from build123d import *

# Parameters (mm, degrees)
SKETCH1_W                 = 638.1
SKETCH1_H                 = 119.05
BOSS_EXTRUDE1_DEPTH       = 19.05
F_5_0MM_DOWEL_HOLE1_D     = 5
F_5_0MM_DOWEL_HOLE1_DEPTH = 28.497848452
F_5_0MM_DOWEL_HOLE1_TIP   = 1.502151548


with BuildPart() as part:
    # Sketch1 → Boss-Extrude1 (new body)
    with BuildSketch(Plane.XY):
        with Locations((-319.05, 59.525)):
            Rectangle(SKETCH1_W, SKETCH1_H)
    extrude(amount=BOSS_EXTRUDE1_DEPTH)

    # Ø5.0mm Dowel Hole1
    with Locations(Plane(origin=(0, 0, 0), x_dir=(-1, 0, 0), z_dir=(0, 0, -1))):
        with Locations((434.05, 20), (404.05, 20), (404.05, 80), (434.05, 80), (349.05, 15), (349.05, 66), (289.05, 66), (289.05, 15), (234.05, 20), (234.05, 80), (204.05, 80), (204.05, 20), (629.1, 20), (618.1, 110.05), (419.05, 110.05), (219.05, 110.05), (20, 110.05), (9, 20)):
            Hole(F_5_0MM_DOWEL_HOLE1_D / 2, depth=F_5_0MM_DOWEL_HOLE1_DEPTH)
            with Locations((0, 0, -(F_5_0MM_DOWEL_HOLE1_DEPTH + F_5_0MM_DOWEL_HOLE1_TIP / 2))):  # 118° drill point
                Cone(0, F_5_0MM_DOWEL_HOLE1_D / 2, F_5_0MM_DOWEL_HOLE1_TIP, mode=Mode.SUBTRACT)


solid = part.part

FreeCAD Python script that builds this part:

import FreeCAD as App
import Part
import Sketcher

doc = App.newDocument("Part")
params = doc.addObject("Spreadsheet::Sheet", "Params")
for row, (alias, value) in enumerate([
    ("sketch1_width", "638.1 mm"),
    ("sketch1_height", "119.05 mm"),
    ("pad1_length", "19.05 mm"),
    ("sketch2_diameter", "5 mm"),
    ("hole_diameter", "5 mm"),
    ("hole_depth", "28.497848 mm"),
], start=1):
    params.set(f"A{row}", alias)
    params.set(f"B{row}", "=" + value)
    params.setAlias(f"B{row}", alias)

body = doc.addObject("PartDesign::Body", "Body")

# Sketch on XY plane
sketch1 = body.newObject("Sketcher::SketchObject", "Sketch")
sketch1.AttachmentSupport = (doc.getObject("XY_Plane"), [""])
sketch1.MapMode = "FlatFace"
sketch1.addGeometry(Part.LineSegment(App.Vector(-638.1, 119.05, 0), App.Vector(-638.1, 0, 0)), False)
sketch1.addGeometry(Part.LineSegment(App.Vector(-638.1, 0, 0), App.Vector(0, 0, 0)), False)
sketch1.addGeometry(Part.LineSegment(App.Vector(0, 0, 0), App.Vector(0, 119.05, 0)), False)
sketch1.addGeometry(Part.LineSegment(App.Vector(0, 119.05, 0), App.Vector(-638.1, 119.05, 0)), False)
sketch1.addConstraint(Sketcher.Constraint("Coincident", 0, 2, 1, 1))
sketch1.addConstraint(Sketcher.Constraint("Coincident", 1, 2, 2, 1))
sketch1.addConstraint(Sketcher.Constraint("Coincident", 2, 2, 3, 1))
sketch1.addConstraint(Sketcher.Constraint("Coincident", 3, 2, 0, 1))
sketch1.addConstraint(Sketcher.Constraint("Vertical", 0))
sketch1.addConstraint(Sketcher.Constraint("Horizontal", 1))
sketch1.addConstraint(Sketcher.Constraint("Vertical", 2))
sketch1.addConstraint(Sketcher.Constraint("Horizontal", 3))
sketch1.addConstraint(Sketcher.Constraint("Coincident", 1, 2, -1, 1))
sketch1.addConstraint(Sketcher.Constraint("DistanceX", 1, 1, 1, 2, 638.1))
sketch1.addConstraint(Sketcher.Constraint("DistanceY", 0, 2, 0, 1, 119.05))
sketch1.setExpression("Constraints[9]", "Params.sketch1_width")
sketch1.setExpression("Constraints[10]", "Params.sketch1_height")
pad1 = body.newObject("PartDesign::Pad", "Pad")
pad1.Profile = sketch1
pad1.setExpression("Length", "Params.pad1_length")

# Sketch on XY plane
sketch2 = body.newObject("Sketcher::SketchObject", "Sketch001")
sketch2.AttachmentSupport = (doc.getObject("XY_Plane"), [""])
sketch2.MapMode = "FlatFace"
sketch2.addGeometry(Part.Circle(App.Vector(-434.05, 20, 0), App.Vector(0, 0, 1), 2.5), False)
sketch2.addGeometry(Part.Circle(App.Vector(-404.05, 20, 0), App.Vector(0, 0, 1), 2.5), False)
sketch2.addGeometry(Part.Circle(App.Vector(-404.05, 80, 0), App.Vector(0, 0, 1), 2.5), False)
sketch2.addGeometry(Part.Circle(App.Vector(-434.05, 80, 0), App.Vector(0, 0, 1), 2.5), False)
sketch2.addGeometry(Part.Circle(App.Vector(-349.05, 15, 0), App.Vector(0, 0, 1), 2.5), False)
sketch2.addGeometry(Part.Circle(App.Vector(-349.05, 66, 0), App.Vector(0, 0, 1), 2.5), False)
sketch2.addGeometry(Part.Circle(App.Vector(-289.05, 66, 0), App.Vector(0, 0, 1), 2.5), False)
sketch2.addGeometry(Part.Circle(App.Vector(-289.05, 15, 0), App.Vector(0, 0, 1), 2.5), False)
sketch2.addGeometry(Part.Circle(App.Vector(-234.05, 20, 0), App.Vector(0, 0, 1), 2.5), False)
sketch2.addGeometry(Part.Circle(App.Vector(-234.05, 80, 0), App.Vector(0, 0, 1), 2.5), False)
sketch2.addGeometry(Part.Circle(App.Vector(-204.05, 80, 0), App.Vector(0, 0, 1), 2.5), False)
sketch2.addGeometry(Part.Circle(App.Vector(-204.05, 20, 0), App.Vector(0, 0, 1), 2.5), False)
sketch2.addGeometry(Part.Circle(App.Vector(-629.1, 20, 0), App.Vector(0, 0, 1), 2.5), False)
sketch2.addGeometry(Part.Circle(App.Vector(-618.1, 110.05, 0), App.Vector(0, 0, 1), 2.5), False)
sketch2.addGeometry(Part.Circle(App.Vector(-419.05, 110.05, 0), App.Vector(0, 0, 1), 2.5), False)
sketch2.addGeometry(Part.Circle(App.Vector(-219.05, 110.05, 0), App.Vector(0, 0, 1), 2.5), False)
sketch2.addGeometry(Part.Circle(App.Vector(-20, 110.05, 0), App.Vector(0, 0, 1), 2.5), False)
sketch2.addGeometry(Part.Circle(App.Vector(-9, 20, 0), App.Vector(0, 0, 1), 2.5), False)
sketch2.addConstraint(Sketcher.Constraint("Equal", 0, 1))
sketch2.addConstraint(Sketcher.Constraint("Equal", 1, 2))
sketch2.addConstraint(Sketcher.Constraint("Equal", 2, 3))
sketch2.addConstraint(Sketcher.Constraint("Equal", 3, 4))
sketch2.addConstraint(Sketcher.Constraint("Equal", 4, 5))
sketch2.addConstraint(Sketcher.Constraint("Equal", 5, 6))
sketch2.addConstraint(Sketcher.Constraint("Equal", 6, 7))
sketch2.addConstraint(Sketcher.Constraint("Equal", 7, 8))
sketch2.addConstraint(Sketcher.Constraint("Equal", 8, 9))
sketch2.addConstraint(Sketcher.Constraint("Equal", 9, 10))
sketch2.addConstraint(Sketcher.Constraint("Equal", 10, 11))
sketch2.addConstraint(Sketcher.Constraint("Equal", 11, 12))
sketch2.addConstraint(Sketcher.Constraint("Equal", 12, 13))
sketch2.addConstraint(Sketcher.Constraint("Equal", 13, 14))
sketch2.addConstraint(Sketcher.Constraint("Equal", 14, 15))
sketch2.addConstraint(Sketcher.Constraint("Equal", 15, 16))
sketch2.addConstraint(Sketcher.Constraint("Equal", 16, 17))
sketch2.addConstraint(Sketcher.Constraint("Horizontal", 0, 3, 1, 3))
sketch2.addConstraint(Sketcher.Constraint("Horizontal", 2, 3, 3, 3))
sketch2.addConstraint(Sketcher.Constraint("Horizontal", 5, 3, 6, 3))
sketch2.addConstraint(Sketcher.Constraint("Horizontal", 4, 3, 7, 3))
sketch2.addConstraint(Sketcher.Constraint("Horizontal", 1, 3, 8, 3))
sketch2.addConstraint(Sketcher.Constraint("Horizontal", 3, 3, 9, 3))
sketch2.addConstraint(Sketcher.Constraint("Horizontal", 9, 3, 10, 3))
sketch2.addConstraint(Sketcher.Constraint("Horizontal", 8, 3, 11, 3))
sketch2.addConstraint(Sketcher.Constraint("Horizontal", 11, 3, 12, 3))
sketch2.addConstraint(Sketcher.Constraint("Horizontal", 13, 3, 14, 3))
sketch2.addConstraint(Sketcher.Constraint("Horizontal", 14, 3, 15, 3))
sketch2.addConstraint(Sketcher.Constraint("Horizontal", 15, 3, 16, 3))
sketch2.addConstraint(Sketcher.Constraint("Horizontal", 12, 3, 17, 3))
sketch2.addConstraint(Sketcher.Constraint("Vertical", 1, 3, 2, 3))
sketch2.addConstraint(Sketcher.Constraint("Vertical", 0, 3, 3, 3))
sketch2.addConstraint(Sketcher.Constraint("Vertical", 4, 3, 5, 3))
sketch2.addConstraint(Sketcher.Constraint("Vertical", 6, 3, 7, 3))
sketch2.addConstraint(Sketcher.Constraint("Vertical", 8, 3, 9, 3))
sketch2.addConstraint(Sketcher.Constraint("Vertical", 10, 3, 11, 3))
sketch2.addConstraint(Sketcher.Constraint("Diameter", 0, 5.0))
sketch2.addConstraint(Sketcher.Constraint("DistanceY", -1, 1, 0, 3, 20.0))
sketch2.addConstraint(Sketcher.Constraint("DistanceY", -1, 1, 2, 3, 80.0))
sketch2.addConstraint(Sketcher.Constraint("DistanceY", -1, 1, 4, 3, 15.0))
sketch2.addConstraint(Sketcher.Constraint("DistanceY", -1, 1, 5, 3, 66.0))
sketch2.addConstraint(Sketcher.Constraint("DistanceX", 16, 3, -1, 1, 20.0))
sketch2.addConstraint(Sketcher.Constraint("DistanceX", 17, 3, -1, 1, 9.0))
sketch2.addConstraint(Sketcher.Constraint("DistanceX", 0, 3, 1, 3, 30.0))
sketch2.addConstraint(Sketcher.Constraint("DistanceX", 1, 3, 4, 3, 55.0))
sketch2.addConstraint(Sketcher.Constraint("DistanceX", 5, 3, 6, 3, 60.0))
sketch2.addConstraint(Sketcher.Constraint("DistanceX", 7, 3, 8, 3, 55.0))
sketch2.addConstraint(Sketcher.Constraint("DistanceX", 9, 3, 10, 3, 30.0))
sketch2.addConstraint(Sketcher.Constraint("DistanceX", 12, 3, 13, 3, 11.0))
sketch2.addConstraint(Sketcher.Constraint("DistanceX", 14, 3, 2, 3, 15.0))
sketch2.addConstraint(Sketcher.Constraint("DistanceX", 9, 3, 15, 3, 15.0))
sketch2.addConstraint(Sketcher.Constraint("DistanceX", 12, 3, -1, 1, 629.1))
sketch2.addConstraint(Sketcher.Constraint("DistanceX", 0, 3, -1, 1, 434.05))
sketch2.addConstraint(Sketcher.Constraint("DistanceY", -1, 1, 13, 3, 110.05))
sketch2.setExpression("Constraints[36]", "Params.sketch2_diameter")
doc.recompute()
hole = body.newObject("PartDesign::Hole", "Hole")
hole.Profile = sketch2
hole.ThreadType = "None"
hole.setExpression("Diameter", "Params.hole_diameter")
hole.DepthType = "Dimension"
hole.setExpression("Depth", "Params.hole_depth")
hole.DrillPoint = "Angled"
hole.DrillPointAngle = 118
hole.Reversed = True

doc.recompute()
